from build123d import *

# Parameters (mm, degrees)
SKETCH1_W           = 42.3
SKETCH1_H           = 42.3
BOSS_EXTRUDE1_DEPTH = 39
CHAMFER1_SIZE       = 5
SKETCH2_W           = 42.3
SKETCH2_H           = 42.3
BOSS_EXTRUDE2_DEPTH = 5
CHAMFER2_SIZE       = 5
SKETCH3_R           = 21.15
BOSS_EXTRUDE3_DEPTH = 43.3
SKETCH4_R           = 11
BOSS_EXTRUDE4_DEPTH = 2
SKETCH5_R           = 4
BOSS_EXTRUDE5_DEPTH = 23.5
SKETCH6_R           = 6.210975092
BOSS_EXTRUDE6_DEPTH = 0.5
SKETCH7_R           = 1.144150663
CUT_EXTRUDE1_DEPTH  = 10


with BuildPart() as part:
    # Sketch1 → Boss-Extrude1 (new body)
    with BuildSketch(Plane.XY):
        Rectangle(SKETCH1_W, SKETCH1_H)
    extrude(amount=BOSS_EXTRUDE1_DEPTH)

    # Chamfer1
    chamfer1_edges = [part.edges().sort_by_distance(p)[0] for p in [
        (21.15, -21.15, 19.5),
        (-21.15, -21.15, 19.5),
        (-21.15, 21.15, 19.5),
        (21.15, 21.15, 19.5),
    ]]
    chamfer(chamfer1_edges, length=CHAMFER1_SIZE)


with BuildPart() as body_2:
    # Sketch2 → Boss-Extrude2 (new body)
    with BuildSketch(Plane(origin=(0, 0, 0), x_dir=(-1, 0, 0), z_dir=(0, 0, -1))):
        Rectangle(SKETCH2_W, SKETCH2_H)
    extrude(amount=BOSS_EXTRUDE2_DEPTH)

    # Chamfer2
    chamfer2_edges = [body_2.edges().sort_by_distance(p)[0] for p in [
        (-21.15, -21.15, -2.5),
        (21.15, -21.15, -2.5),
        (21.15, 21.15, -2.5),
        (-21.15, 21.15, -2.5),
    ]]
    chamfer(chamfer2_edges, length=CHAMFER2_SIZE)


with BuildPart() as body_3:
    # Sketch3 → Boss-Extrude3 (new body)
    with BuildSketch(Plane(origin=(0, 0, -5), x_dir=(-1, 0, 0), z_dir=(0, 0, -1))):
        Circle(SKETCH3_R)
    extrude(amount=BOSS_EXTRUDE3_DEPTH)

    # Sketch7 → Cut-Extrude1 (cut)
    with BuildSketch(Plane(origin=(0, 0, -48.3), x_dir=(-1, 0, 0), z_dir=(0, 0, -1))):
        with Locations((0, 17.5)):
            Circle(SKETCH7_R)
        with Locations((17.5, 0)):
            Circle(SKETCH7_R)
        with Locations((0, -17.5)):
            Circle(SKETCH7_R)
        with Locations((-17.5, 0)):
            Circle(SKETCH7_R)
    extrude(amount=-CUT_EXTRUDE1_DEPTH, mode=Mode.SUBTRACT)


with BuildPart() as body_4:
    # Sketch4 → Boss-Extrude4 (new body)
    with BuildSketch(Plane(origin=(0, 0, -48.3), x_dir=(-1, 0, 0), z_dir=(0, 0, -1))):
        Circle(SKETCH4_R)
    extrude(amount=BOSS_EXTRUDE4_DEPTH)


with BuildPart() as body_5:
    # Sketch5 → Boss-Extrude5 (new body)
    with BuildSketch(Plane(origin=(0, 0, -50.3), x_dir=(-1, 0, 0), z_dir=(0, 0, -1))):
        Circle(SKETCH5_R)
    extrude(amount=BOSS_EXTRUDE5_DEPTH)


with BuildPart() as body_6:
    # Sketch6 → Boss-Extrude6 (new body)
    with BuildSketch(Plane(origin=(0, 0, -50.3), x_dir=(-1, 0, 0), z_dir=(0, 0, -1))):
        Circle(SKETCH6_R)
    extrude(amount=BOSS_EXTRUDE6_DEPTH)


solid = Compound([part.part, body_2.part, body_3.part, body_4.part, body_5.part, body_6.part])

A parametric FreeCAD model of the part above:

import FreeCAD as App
import Part
import Sketcher
Q = App.Units.Quantity


def edges_at(feature, points):
    """Names of the edges that pass closest to the given points."""
    edges = feature.Shape.Edges
    near = lambda p: min(range(len(edges)), key=lambda i: edges[i].distToShape(Part.Vertex(*p))[0])
    return sorted({f"Edge{near(p) + 1}" for p in points})


def add_polygon(sketch, points):
    """Adds a closed chain of lines whose ends are joined by coincident constraints."""
    first, n = sketch.GeometryCount, len(points)
    for a, b in zip(points, points[1:] + points[:1]):
        sketch.addGeometry(Part.LineSegment(App.Vector(*a, 0), App.Vector(*b, 0)), False)
    for i in range(n):
        sketch.addConstraint(Sketcher.Constraint("Coincident", first + i, 2, first + (i + 1) % n, 1))

doc = App.newDocument("Part")
body = doc.addObject("PartDesign::Body", "Body")

sketch1 = doc.addObject("Sketcher::SketchObject", "Sketch")
body.addObject(sketch1)
sketch1.AttachmentSupport = (doc.XY_Plane, [""])
sketch1.MapMode = "FlatFace"
add_polygon(sketch1, [(-21, 21), (-21, -21), (21, -21), (21, 21)])
sketch1.addConstraint(Sketcher.Constraint("Vertical", 0))
sketch1.addConstraint(Sketcher.Constraint("Horizontal", 1))
sketch1.addConstraint(Sketcher.Constraint("Vertical", 2))
sketch1.addConstraint(Sketcher.Constraint("Horizontal", 3))
sketch1.addConstraint(Sketcher.Constraint("Symmetric", 0, 2, 2, 2, -1, 1))
sketch1.addConstraint(Sketcher.Constraint("Equal", 3, 0))
sketch1.addConstraint(Sketcher.Constraint("DistanceX", 1, 1, 1, 2, Q("42.3 mm")))
pad1 = doc.addObject("PartDesign::Pad", "Pad")
body.addObject(pad1)
pad1.Profile = sketch1
pad1.Length = 39
doc.recompute()

chamfer = doc.addObject("PartDesign::Chamfer", "Chamfer")
body.addObject(chamfer)
chamfer.Base = (pad1, edges_at(pad1, [
    (21.15, -21.15, 19.5),
    (-21.15, -21.15, 19.5),
    (-21.15, 21.15, 19.5),
    (21.15, 21.15, 19.5),
]))
chamfer.Size = 5
body2 = doc.addObject("PartDesign::Body", "Body001")

sketch2 = doc.addObject("Sketcher::SketchObject", "Sketch001")
body2.addObject(sketch2)
sketch2.AttachmentSupport = (doc.getObject("XY_Plane001"), [""])
sketch2.MapMode = "FlatFace"
add_polygon(sketch2, [(21, 21), (21, -21), (-21, -21), (-21, 21)])
sketch2.addConstraint(Sketcher.Constraint("Vertical", 0))
sketch2.addConstraint(Sketcher.Constraint("Horizontal", 1))
sketch2.addConstraint(Sketcher.Constraint("Vertical", 2))
sketch2.addConstraint(Sketcher.Constraint("Horizontal", 3))
sketch2.addConstraint(Sketcher.Constraint("Symmetric", 0, 2, 2, 2, -1, 1))
sketch2.addConstraint(Sketcher.Constraint("Equal", 3, 0))
sketch2.addConstraint(Sketcher.Constraint("DistanceX", 1, 2, 1, 1, Q("42.3 mm")))
pad2 = doc.addObject("PartDesign::Pad", "Pad001")
body2.addObject(pad2)
pad2.Profile = sketch2
pad2.Length = 5
pad2.Reversed = True
doc.recompute()

chamfer2 = doc.addObject("PartDesign::Chamfer", "Chamfer001")
body2.addObject(chamfer2)
chamfer2.Base = (pad2, edges_at(pad2, [
    (-21.15, -21.15, -2.5),
    (21.15, -21.15, -2.5),
    (21.15, 21.15, -2.5),
    (-21.15, 21.15, -2.5),
]))
chamfer2.Size = 5
body3 = doc.addObject("PartDesign::Body", "Body002")

sketch3 = doc.addObject("Sketcher::SketchObject", "Sketch002")
body3.addObject(sketch3)
sketch3.AttachmentSupport = (doc.getObject("XY_Plane002"), [""])
sketch3.MapMode = "FlatFace"
sketch3.AttachmentOffset = App.Placement(App.Vector(0, 0, -5), App.Rotation())
sketch3.addGeometry(Part.Circle(App.Vector(0, 0, 0), App.Vector(0, 0, 1), 21), False)
sketch3.addConstraint(Sketcher.Constraint("Coincident", 0, 3, -1, 1))
sketch3.addConstraint(Sketcher.Constraint("Diameter", 0, Q("42.3 mm")))
pad3 = doc.addObject("PartDesign::Pad", "Pad002")
body3.addObject(pad3)
pad3.Profile = sketch3
pad3.Length = 43.3
pad3.Reversed = True

sketch4 = doc.addObject("Sketcher::SketchObject", "Sketch003")
body3.addObject(sketch4)
sketch4.AttachmentSupport = (doc.getObject("XY_Plane002"), [""])
sketch4.MapMode = "FlatFace"
sketch4.AttachmentOffset = App.Placement(App.Vector(0, 0, -48.3), App.Rotation())
sketch4.addGeometry(Part.Circle(App.Vector(0, 17.5, 0), App.Vector(0, 0, 1), 1.1), False)
sketch4.addGeometry(Part.Circle(App.Vector(-17.5, 0, 0), App.Vector(0, 0, 1), 1.1), False)
sketch4.addGeometry(Part.Circle(App.Vector(0, -17.5, 0), App.Vector(0, 0, 1), 1.1), False)
sketch4.addGeometry(Part.Circle(App.Vector(17.5, 0, 0), App.Vector(0, 0, 1), 1.1), False)
sketch4.addConstraint(Sketcher.Constraint("Equal", 0, 1))
sketch4.addConstraint(Sketcher.Constraint("Equal", 1, 2))
sketch4.addConstraint(Sketcher.Constraint("Equal", 2, 3))
sketch4.addConstraint(Sketcher.Constraint("Symmetric", 0, 3, 2, 3, -1, 1))
sketch4.addConstraint(Sketcher.Constraint("Symmetric", 1, 3, 3, 3, -1, 1))
sketch4.addConstraint(Sketcher.Constraint("PointOnObject", 0, 3, -2))
sketch4.addConstraint(Sketcher.Constraint("PointOnObject", 1, 3, -1))
sketch4.addConstraint(Sketcher.Constraint("DistanceY", 2, 3, 0, 3, Q("35 mm")))
sketch4.addConstraint(Sketcher.Constraint("DistanceX", 1, 3, 3, 3, Q("35 mm")))
sketch4.addConstraint(Sketcher.Constraint("Diameter", 0, Q("2.288301 mm")))
pocket1 = doc.addObject("PartDesign::Pocket", "Pocket")
body3.addObject(pocket1)
pocket1.Profile = sketch4
pocket1.Length = 10
pocket1.Reversed = True
body4 = doc.addObject("PartDesign::Body", "Body003")

sketch5 = doc.addObject("Sketcher::SketchObject", "Sketch004")
body4.addObject(sketch5)
sketch5.AttachmentSupport = (doc.getObject("XY_Plane003"), [""])
sketch5.MapMode = "FlatFace"
sketch5.AttachmentOffset = App.Placement(App.Vector(0, 0, -48.3), App.Rotation())
sketch5.addGeometry(Part.Circle(App.Vector(0, 0, 0), App.Vector(0, 0, 1), 11), False)
sketch5.addConstraint(Sketcher.Constraint("Coincident", 0, 3, -1, 1))
sketch5.addConstraint(Sketcher.Constraint("Diameter", 0, Q("22 mm")))
pad4 = doc.addObject("PartDesign::Pad", "Pad003")
body4.addObject(pad4)
pad4.Profile = sketch5
pad4.Length = 2
pad4.Reversed = True
body5 = doc.addObject("PartDesign::Body", "Body004")

sketch6 = doc.addObject("Sketcher::SketchObject", "Sketch005")
body5.addObject(sketch6)
sketch6.AttachmentSupport = (doc.getObject("XY_Plane004"), [""])
sketch6.MapMode = "FlatFace"
sketch6.AttachmentOffset = App.Placement(App.Vector(0, 0, -50.3), App.Rotation())
sketch6.addGeometry(Part.Circle(App.Vector(0, 0, 0), App.Vector(0, 0, 1), 4), False)
sketch6.addConstraint(Sketcher.Constraint("Coincident", 0, 3, -1, 1))
sketch6.addConstraint(Sketcher.Constraint("Diameter", 0, Q("8 mm")))
pad5 = doc.addObject("PartDesign::Pad", "Pad004")
body5.addObject(pad5)
pad5.Profile = sketch6
pad5.Length = 23.5
pad5.Reversed = True
body6 = doc.addObject("PartDesign::Body", "Body005")

sketch7 = doc.addObject("Sketcher::SketchObject", "Sketch006")
body6.addObject(sketch7)
sketch7.AttachmentSupport = (doc.getObject("XY_Plane005"), [""])
sketch7.MapMode = "FlatFace"
sketch7.AttachmentOffset = App.Placement(App.Vector(0, 0, -50.3), App.Rotation())
sketch7.addGeometry(Part.Circle(App.Vector(0, 0, 0), App.Vector(0, 0, 1), 6), False)
sketch7.addConstraint(Sketcher.Constraint("Coincident", 0, 3, -1, 1))
sketch7.addConstraint(Sketcher.Constraint("Diameter", 0, Q("12.42195 mm")))
pad6 = doc.addObject("PartDesign::Pad", "Pad005")
body6.addObject(pad6)
pad6.Profile = sketch7
pad6.Length = 0.5
pad6.Reversed = True

doc.recompute()
